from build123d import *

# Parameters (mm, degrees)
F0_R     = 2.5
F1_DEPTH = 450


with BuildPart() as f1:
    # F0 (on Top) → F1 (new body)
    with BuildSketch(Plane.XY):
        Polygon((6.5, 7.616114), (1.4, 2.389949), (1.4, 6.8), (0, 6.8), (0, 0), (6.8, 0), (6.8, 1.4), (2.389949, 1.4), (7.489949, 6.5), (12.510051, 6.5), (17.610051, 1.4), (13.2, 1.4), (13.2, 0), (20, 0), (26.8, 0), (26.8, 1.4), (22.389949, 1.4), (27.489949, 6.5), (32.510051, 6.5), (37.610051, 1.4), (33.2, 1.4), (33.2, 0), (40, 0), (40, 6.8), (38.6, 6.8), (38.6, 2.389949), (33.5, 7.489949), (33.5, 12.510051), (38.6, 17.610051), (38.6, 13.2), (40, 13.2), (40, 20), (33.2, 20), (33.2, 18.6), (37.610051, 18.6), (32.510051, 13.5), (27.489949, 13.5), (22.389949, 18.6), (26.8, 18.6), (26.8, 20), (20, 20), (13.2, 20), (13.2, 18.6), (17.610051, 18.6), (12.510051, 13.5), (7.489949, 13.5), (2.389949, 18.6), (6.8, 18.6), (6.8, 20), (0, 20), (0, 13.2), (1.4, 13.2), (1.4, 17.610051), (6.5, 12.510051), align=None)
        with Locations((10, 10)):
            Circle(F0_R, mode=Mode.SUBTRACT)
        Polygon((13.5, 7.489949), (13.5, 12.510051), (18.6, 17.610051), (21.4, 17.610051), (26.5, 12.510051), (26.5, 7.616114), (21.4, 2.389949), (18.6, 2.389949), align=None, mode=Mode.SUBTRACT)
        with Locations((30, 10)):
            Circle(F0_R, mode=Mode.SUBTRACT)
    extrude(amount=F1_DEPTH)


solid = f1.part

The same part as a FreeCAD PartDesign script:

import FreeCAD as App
import Part
import Sketcher
from FreeCAD import Vector
Q = App.Units.Quantity

doc = App.newDocument("Part")
body = doc.addObject("PartDesign::Body", "Body")

# Sketch on XY plane
sketch1 = body.newObject("Sketcher::SketchObject", "Sketch")
sketch1.AttachmentSupport = (doc.getObject("XY_Plane"), [""])
sketch1.MapMode = "FlatFace"
sketch1.addGeometry([
    Part.LineSegment(Vector(6.5, 7.6, 0), Vector(1.4, 2.4, 0)),  # 0
    Part.LineSegment(Vector(1.4, 2.4, 0), Vector(1.4, 6.8, 0)),  # 1
    Part.LineSegment(Vector(1.4, 6.8, 0), Vector(0, 6.8, 0)),  # 2
    Part.LineSegment(Vector(0, 6.8, 0), Vector(0, 0, 0)),  # 3
    Part.LineSegment(Vector(0, 0, 0), Vector(6.8, 0, 0)),  # 4
    Part.LineSegment(Vector(6.8, 0, 0), Vector(6.8, 1.4, 0)),  # 5
    Part.LineSegment(Vector(6.8, 1.4, 0), Vector(2.4, 1.4, 0)),  # 6
    Part.LineSegment(Vector(2.4, 1.4, 0), Vector(7.5, 6.5, 0)),  # 7
    Part.LineSegment(Vector(7.5, 6.5, 0), Vector(12.5, 6.5, 0)),  # 8
    Part.LineSegment(Vector(12.5, 6.5, 0), Vector(17.6, 1.4, 0)),  # 9
    Part.LineSegment(Vector(17.6, 1.4, 0), Vector(13.2, 1.4, 0)),  # 10
    Part.LineSegment(Vector(13.2, 1.4, 0), Vector(13.2, 0, 0)),  # 11
    Part.LineSegment(Vector(13.2, 0, 0), Vector(26.8, 0, 0)),  # 12
    Part.LineSegment(Vector(26.8, 0, 0), Vector(26.8, 1.4, 0)),  # 13
    Part.LineSegment(Vector(26.8, 1.4, 0), Vector(22.4, 1.4, 0)),  # 14
    Part.LineSegment(Vector(22.4, 1.4, 0), Vector(27.5, 6.5, 0)),  # 15
    Part.LineSegment(Vector(27.5, 6.5, 0), Vector(32.5, 6.5, 0)),  # 16
    Part.LineSegment(Vector(32.5, 6.5, 0), Vector(37.6, 1.4, 0)),  # 17
    Part.LineSegment(Vector(37.6, 1.4, 0), Vector(33.2, 1.4, 0)),  # 18
    Part.LineSegment(Vector(33.2, 1.4, 0), Vector(33.2, 0, 0)),  # 19
    Part.LineSegment(Vector(33.2, 0, 0), Vector(40, 0, 0)),  # 20
    Part.LineSegment(Vector(40, 0, 0), Vector(40, 6.8, 0)),  # 21
    Part.LineSegment(Vector(40, 6.8, 0), Vector(38.6, 6.8, 0)),  # 22
    Part.LineSegment(Vector(38.6, 6.8, 0), Vector(38.6, 2.4, 0)),  # 23
    Part.LineSegment(Vector(38.6, 2.4, 0), Vector(33.5, 7.5, 0)),  # 24
    Part.LineSegment(Vector(33.5, 7.5, 0), Vector(33.5, 12.5, 0)),  # 25
    Part.LineSegment(Vector(33.5, 12.5, 0), Vector(38.6, 17.6, 0)),  # 26
    Part.LineSegment(Vector(38.6, 17.6, 0), Vector(38.6, 13.2, 0)),  # 27
    Part.LineSegment(Vector(38.6, 13.2, 0), Vector(40, 13.2, 0)),  # 28
    Part.LineSegment(Vector(40, 13.2, 0), Vector(40, 20, 0)),  # 29
    Part.LineSegment(Vector(40, 20, 0), Vector(33.2, 20, 0)),  # 30
    Part.LineSegment(Vector(33.2, 20, 0), Vector(33.2, 18.6, 0)),  # 31
    Part.LineSegment(Vector(33.2, 18.6, 0), Vector(37.6, 18.6, 0)),  # 32
    Part.LineSegment(Vector(37.6, 18.6, 0), Vector(32.5, 13.5, 0)),  # 33
    Part.LineSegment(Vector(32.5, 13.5, 0), Vector(27.5, 13.5, 0)),  # 34
    Part.LineSegment(Vector(27.5, 13.5, 0), Vector(22.4, 18.6, 0)),  # 35
    Part.LineSegment(Vector(22.4, 18.6, 0), Vector(26.8, 18.6, 0)),  # 36
    Part.LineSegment(Vector(26.8, 18.6, 0), Vector(26.8, 20, 0)),  # 37
    Part.LineSegment(Vector(26.8, 20, 0), Vector(13.2, 20, 0)),  # 38
    Part.LineSegment(Vector(13.2, 20, 0), Vector(13.2, 18.6, 0)),  # 39
    Part.LineSegment(Vector(13.2, 18.6, 0), Vector(17.6, 18.6, 0)),  # 40
    Part.LineSegment(Vector(17.6, 18.6, 0), Vector(12.5, 13.5, 0)),  # 41
    Part.LineSegment(Vector(12.5, 13.5, 0), Vector(7.5, 13.5, 0)),  # 42
    Part.LineSegment(Vector(7.5, 13.5, 0), Vector(2.4, 18.6, 0)),  # 43
    Part.LineSegment(Vector(2.4, 18.6, 0), Vector(6.8, 18.6, 0)),  # 44
    Part.LineSegment(Vector(6.8, 18.6, 0), Vector(6.8, 20, 0)),  # 45
    Part.LineSegment(Vector(6.8, 20, 0), Vector(0, 20, 0)),  # 46
    Part.LineSegment(Vector(0, 20, 0), Vector(0, 13.2, 0)),  # 47
    Part.LineSegment(Vector(0, 13.2, 0), Vector(1.4, 13.2, 0)),  # 48
    Part.LineSegment(Vector(1.4, 13.2, 0), Vector(1.4, 17.6, 0)),  # 49
    Part.LineSegment(Vector(1.4, 17.6, 0), Vector(6.5, 12.5, 0)),  # 50
    Part.LineSegment(Vector(6.5, 12.5, 0), Vector(6.5, 7.6, 0)),  # 51
    Part.Circle(Vector(10, 10, 0), Vector(0, 0, 1), 2.5),  # 52
    Part.LineSegment(Vector(18.6, 2.4, 0), Vector(13.5, 7.5, 0)),  # 53
    Part.LineSegment(Vector(13.5, 7.5, 0), Vector(13.5, 12.5, 0)),  # 54
    Part.LineSegment(Vector(13.5, 12.5, 0), Vector(18.6, 17.6, 0)),  # 55
    Part.LineSegment(Vector(18.6, 17.6, 0), Vector(21.4, 17.6, 0)),  # 56
    Part.LineSegment(Vector(21.4, 17.6, 0), Vector(26.5, 12.5, 0)),  # 57
    Part.LineSegment(Vector(26.5, 12.5, 0), Vector(26.5, 7.6, 0)),  # 58
    Part.LineSegment(Vector(26.5, 7.6, 0), Vector(21.4, 2.4, 0)),  # 59
    Part.LineSegment(Vector(21.4, 2.4, 0), Vector(18.6, 2.4, 0)),  # 60
    Part.Circle(Vector(30, 10, 0), Vector(0, 0, 1), 2.5),  # 61
], False)
sketch1.addConstraint([
    Sketcher.Constraint("Coincident", 0, 2, 1, 1),
    Sketcher.Constraint("Coincident", 1, 2, 2, 1),
    Sketcher.Constraint("Coincident", 2, 2, 3, 1),
    Sketcher.Constraint("Coincident", 3, 2, 4, 1),
    Sketcher.Constraint("Coincident", 4, 2, 5, 1),
    Sketcher.Constraint("Coincident", 5, 2, 6, 1),
    Sketcher.Constraint("Coincident", 6, 2, 7, 1),
    Sketcher.Constraint("Coincident", 7, 2, 8, 1),
    Sketcher.Constraint("Coincident", 8, 2, 9, 1),
    Sketcher.Constraint("Coincident", 9, 2, 10, 1),
    Sketcher.Constraint("Coincident", 10, 2, 11, 1),
    Sketcher.Constraint("Coincident", 11, 2, 12, 1),
    Sketcher.Constraint("Coincident", 12, 2, 13, 1),
    Sketcher.Constraint("Coincident", 13, 2, 14, 1),
    Sketcher.Constraint("Coincident", 14, 2, 15, 1),
    Sketcher.Constraint("Coincident", 15, 2, 16, 1),
    Sketcher.Constraint("Coincident", 16, 2, 17, 1),
    Sketcher.Constraint("Coincident", 17, 2, 18, 1),
    Sketcher.Constraint("Coincident", 18, 2, 19, 1),
    Sketcher.Constraint("Coincident", 19, 2, 20, 1),
    Sketcher.Constraint("Coincident", 20, 2, 21, 1),
    Sketcher.Constraint("Coincident", 21, 2, 22, 1),
    Sketcher.Constraint("Coincident", 22, 2, 23, 1),
    Sketcher.Constraint("Coincident", 23, 2, 24, 1),
    Sketcher.Constraint("Coincident", 24, 2, 25, 1),
    Sketcher.Constraint("Coincident", 25, 2, 26, 1),
    Sketcher.Constraint("Coincident", 26, 2, 27, 1),
    Sketcher.Constraint("Coincident", 27, 2, 28, 1),
    Sketcher.Constraint("Coincident", 28, 2, 29, 1),
    Sketcher.Constraint("Coincident", 29, 2, 30, 1),
    Sketcher.Constraint("Coincident", 30, 2, 31, 1),
    Sketcher.Constraint("Coincident", 31, 2, 32, 1),
    Sketcher.Constraint("Coincident", 32, 2, 33, 1),
    Sketcher.Constraint("Coincident", 33, 2, 34, 1),
    Sketcher.Constraint("Coincident", 34, 2, 35, 1),
    Sketcher.Constraint("Coincident", 35, 2, 36, 1),
    Sketcher.Constraint("Coincident", 36, 2, 37, 1),
    Sketcher.Constraint("Coincident", 37, 2, 38, 1),
    Sketcher.Constraint("Coincident", 38, 2, 39, 1),
    Sketcher.Constraint("Coincident", 39, 2, 40, 1),
    Sketcher.Constraint("Coincident", 40, 2, 41, 1),
    Sketcher.Constraint("Coincident", 41, 2, 42, 1),
    Sketcher.Constraint("Coincident", 42, 2, 43, 1),
    Sketcher.Constraint("Coincident", 43, 2, 44, 1),
    Sketcher.Constraint("Coincident", 44, 2, 45, 1),
    Sketcher.Constraint("Coincident", 45, 2, 46, 1),
    Sketcher.Constraint("Coincident", 46, 2, 47, 1),
    Sketcher.Constraint("Coincident", 47, 2, 48, 1),
    Sketcher.Constraint("Coincident", 48, 2, 49, 1),
    Sketcher.Constraint("Coincident", 49, 2, 50, 1),
    Sketcher.Constraint("Coincident", 50, 2, 51, 1),
    Sketcher.Constraint("Coincident", 51, 2, 0, 1),
    Sketcher.Constraint("Coincident", 53, 2, 54, 1),
    Sketcher.Constraint("Coincident", 54, 2, 55, 1),
    Sketcher.Constraint("Coincident", 55, 2, 56, 1),
    Sketcher.Constraint("Coincident", 56, 2, 57, 1),
    Sketcher.Constraint("Coincident", 57, 2, 58, 1),
    Sketcher.Constraint("Coincident", 58, 2, 59, 1),
    Sketcher.Constraint("Coincident", 59, 2, 60, 1),
    Sketcher.Constraint("Coincident", 60, 2, 53, 1),
    Sketcher.Constraint("Vertical", 1),
    Sketcher.Constraint("Horizontal", 2),
    Sketcher.Constraint("Vertical", 3),
    Sketcher.Constraint("Horizontal", 4),
    Sketcher.Constraint("Vertical", 5),
    Sketcher.Constraint("Horizontal", 6),
    Sketcher.Constraint("Horizontal", 8),
    Sketcher.Constraint("Horizontal", 10),
    Sketcher.Constraint("Vertical", 11),
    Sketcher.Constraint("Horizontal", 12),
    Sketcher.Constraint("Vertical", 13),
    Sketcher.Constraint("Horizontal", 14),
    Sketcher.Constraint("Horizontal", 16),
    Sketcher.Constraint("Horizontal", 18),
    Sketcher.Constraint("Vertical", 19),
    Sketcher.Constraint("Horizontal", 20),
    Sketcher.Constraint("Vertical", 21),
    Sketcher.Constraint("Horizontal", 22),
    Sketcher.Constraint("Vertical", 23),
    Sketcher.Constraint("Vertical", 25),
    Sketcher.Constraint("Vertical", 27),
    Sketcher.Constraint("Horizontal", 28),
    Sketcher.Constraint("Vertical", 29),
    Sketcher.Constraint("Horizontal", 30),
    Sketcher.Constraint("Vertical", 31),
    Sketcher.Constraint("Horizontal", 32),
    Sketcher.Constraint("Horizontal", 34),
    Sketcher.Constraint("Horizontal", 36),
    Sketcher.Constraint("Vertical", 37),
    Sketcher.Constraint("Horizontal", 38),
    Sketcher.Constraint("Vertical", 39),
    Sketcher.Constraint("Horizontal", 40),
    Sketcher.Constraint("Horizontal", 42),
    Sketcher.Constraint("Horizontal", 44),
    Sketcher.Constraint("Vertical", 45),
    Sketcher.Constraint("Horizontal", 46),
    Sketcher.Constraint("Vertical", 47),
    Sketcher.Constraint("Horizontal", 48),
    Sketcher.Constraint("Vertical", 49),
    Sketcher.Constraint("Vertical", 51),
    Sketcher.Constraint("Vertical", 54),
    Sketcher.Constraint("Horizontal", 56),
    Sketcher.Constraint("Vertical", 58),
    Sketcher.Constraint("Horizontal", 60),
    Sketcher.Constraint("Coincident", 3, 2, -1, 1),
    Sketcher.Constraint("Equal", 52, 61),
    Sketcher.Constraint("PointOnObject", 11, 2, -1),
    Sketcher.Constraint("PointOnObject", 19, 2, -1),
    Sketcher.Constraint("PointOnObject", 46, 2, -2),
    Sketcher.Constraint("Perpendicular", 7, 9),
    Sketcher.Constraint("Perpendicular", 9, 15),
    Sketcher.Constraint("Perpendicular", 15, 17),
    Sketcher.Constraint("Parallel", 17, 24),
    Sketcher.Constraint("Perpendicular", 24, 26),
    Sketcher.Constraint("Parallel", 26, 33),
    Sketcher.Constraint("Perpendicular", 33, 35),
    Sketcher.Constraint("Perpendicular", 35, 41),
    Sketcher.Constraint("Perpendicular", 41, 43),
    Sketcher.Constraint("Parallel", 43, 50),
    Sketcher.Constraint("Parallel", 50, 53),
    Sketcher.Constraint("Perpendicular", 53, 55),
    Sketcher.Constraint("Perpendicular", 55, 57),
    Sketcher.Constraint("Parallel", 0, 59),
    Sketcher.Constraint("Horizontal", 52, 3, 61, 3),
    Sketcher.Constraint("Horizontal", 6, 2, 9, 2),
    Sketcher.Constraint("Horizontal", 10, 2, 13, 2),
    Sketcher.Constraint("Horizontal", 8, 2, 15, 2),
    Sketcher.Constraint("Horizontal", 14, 2, 17, 2),
    Sketcher.Constraint("Horizontal", 2, 2, 21, 2),
    Sketcher.Constraint("Horizontal", 0, 2, 23, 2),
    Sketcher.Constraint("Horizontal", 32, 2, 35, 2),
    Sketcher.Constraint("Horizontal", 30, 2, 37, 2),
    Sketcher.Constraint("Horizontal", 36, 2, 39, 2),
    Sketcher.Constraint("Horizontal", 34, 2, 41, 2),
    Sketcher.Constraint("Horizontal", 40, 2, 43, 2),
    Sketcher.Constraint("Horizontal", 38, 2, 45, 2),
    Sketcher.Constraint("Horizontal", 28, 2, 47, 2),
    Sketcher.Constraint("Horizontal", 26, 2, 49, 2),
    Sketcher.Constraint("Horizontal", 25, 2, 50, 2),
    Sketcher.Constraint("Horizontal", 24, 2, 53, 2),
    Sketcher.Constraint("Horizontal", 50, 2, 54, 2),
    Sketcher.Constraint("Horizontal", 49, 2, 55, 2),
    Sketcher.Constraint("Horizontal", 54, 2, 57, 2),
    Sketcher.Constraint("Horizontal", 51, 2, 58, 2),
    Sketcher.Constraint("Horizontal", 23, 2, 59, 2),
    Sketcher.Constraint("Vertical", 23, 2, 26, 2),
    Sketcher.Constraint("Vertical", 21, 2, 28, 2),
    Sketcher.Constraint("Vertical", 19, 2, 30, 2),
    Sketcher.Constraint("Vertical", 17, 2, 32, 2),
    Sketcher.Constraint("Vertical", 16, 2, 33, 2),
    Sketcher.Constraint("Vertical", 15, 2, 34, 2),
    Sketcher.Constraint("Vertical", 14, 2, 35, 2),
    Sketcher.Constraint("Vertical", 13, 2, 36, 2),
    Sketcher.Constraint("Vertical", 11, 2, 38, 2),
    Sketcher.Constraint("Vertical", 9, 2, 40, 2),
    Sketcher.Constraint("Vertical", 7, 2, 42, 2),
    Sketcher.Constraint("Vertical", 5, 2, 44, 2),
    Sketcher.Constraint("Vertical", 1, 2, 48, 2),
    Sketcher.Constraint("Equal", 6, 10),
    Sketcher.Constraint("Equal", 10, 14),
    Sketcher.Constraint("Equal", 8, 16),
    Sketcher.Constraint("Equal", 14, 18),
    Sketcher.Constraint("Equal", 4, 20),
    Sketcher.Constraint("Equal", 2, 22),
    Sketcher.Constraint("Equal", 44, 1),
    Sketcher.Constraint("Equal", 46, 3),
    Sketcher.Constraint("Equal", 48, 5),
    Sketcher.Constraint("Equal", 42, 25),
    Sketcher.Constraint("Equal", 23, 27),
    Sketcher.Constraint("Equal", 21, 29),
    Sketcher.Constraint("Equal", 19, 31),
    Sketcher.Constraint("Equal", 17, 24),
    Sketcher.Constraint("Diameter", 52, 5.0),
    Sketcher.Constraint("DistanceX", 2, 2, 2, 1, 1.4),
    Sketcher.Constraint("DistanceX", 4, 1, 4, 2, 6.8),
    Sketcher.Constraint("DistanceX", 12, 1, 12, 2, 13.6),
    Sketcher.Constraint("DistanceX", 56, 1, 56, 2, 2.8),
    Sketcher.Constraint("DistanceX", -1, 1, 52, 3, 10.0),
    Sketcher.Constraint("DistanceY", -1, 1, 52, 3, 10.0),
    Sketcher.Constraint("DistanceX", -1, 1, 61, 3, 30.0),
    Sketcher.Constraint("DistanceX", -1, 1, 20, 2, 40.0),
    Sketcher.Constraint("Angle", 0, Q("-134.299995 deg")),
    Sketcher.Constraint("DistanceY", -1, 1, 7, 2, 6.5),
    Sketcher.Constraint("DistanceX", -1, 1, 53, 2, 13.5),
    Sketcher.Constraint("DistanceX", 16, 1, 16, 2, 5.020102),
])
pad1 = body.newObject("PartDesign::Pad", "Pad")
pad1.Profile = sketch1
pad1.Length = 450

doc.recompute()
